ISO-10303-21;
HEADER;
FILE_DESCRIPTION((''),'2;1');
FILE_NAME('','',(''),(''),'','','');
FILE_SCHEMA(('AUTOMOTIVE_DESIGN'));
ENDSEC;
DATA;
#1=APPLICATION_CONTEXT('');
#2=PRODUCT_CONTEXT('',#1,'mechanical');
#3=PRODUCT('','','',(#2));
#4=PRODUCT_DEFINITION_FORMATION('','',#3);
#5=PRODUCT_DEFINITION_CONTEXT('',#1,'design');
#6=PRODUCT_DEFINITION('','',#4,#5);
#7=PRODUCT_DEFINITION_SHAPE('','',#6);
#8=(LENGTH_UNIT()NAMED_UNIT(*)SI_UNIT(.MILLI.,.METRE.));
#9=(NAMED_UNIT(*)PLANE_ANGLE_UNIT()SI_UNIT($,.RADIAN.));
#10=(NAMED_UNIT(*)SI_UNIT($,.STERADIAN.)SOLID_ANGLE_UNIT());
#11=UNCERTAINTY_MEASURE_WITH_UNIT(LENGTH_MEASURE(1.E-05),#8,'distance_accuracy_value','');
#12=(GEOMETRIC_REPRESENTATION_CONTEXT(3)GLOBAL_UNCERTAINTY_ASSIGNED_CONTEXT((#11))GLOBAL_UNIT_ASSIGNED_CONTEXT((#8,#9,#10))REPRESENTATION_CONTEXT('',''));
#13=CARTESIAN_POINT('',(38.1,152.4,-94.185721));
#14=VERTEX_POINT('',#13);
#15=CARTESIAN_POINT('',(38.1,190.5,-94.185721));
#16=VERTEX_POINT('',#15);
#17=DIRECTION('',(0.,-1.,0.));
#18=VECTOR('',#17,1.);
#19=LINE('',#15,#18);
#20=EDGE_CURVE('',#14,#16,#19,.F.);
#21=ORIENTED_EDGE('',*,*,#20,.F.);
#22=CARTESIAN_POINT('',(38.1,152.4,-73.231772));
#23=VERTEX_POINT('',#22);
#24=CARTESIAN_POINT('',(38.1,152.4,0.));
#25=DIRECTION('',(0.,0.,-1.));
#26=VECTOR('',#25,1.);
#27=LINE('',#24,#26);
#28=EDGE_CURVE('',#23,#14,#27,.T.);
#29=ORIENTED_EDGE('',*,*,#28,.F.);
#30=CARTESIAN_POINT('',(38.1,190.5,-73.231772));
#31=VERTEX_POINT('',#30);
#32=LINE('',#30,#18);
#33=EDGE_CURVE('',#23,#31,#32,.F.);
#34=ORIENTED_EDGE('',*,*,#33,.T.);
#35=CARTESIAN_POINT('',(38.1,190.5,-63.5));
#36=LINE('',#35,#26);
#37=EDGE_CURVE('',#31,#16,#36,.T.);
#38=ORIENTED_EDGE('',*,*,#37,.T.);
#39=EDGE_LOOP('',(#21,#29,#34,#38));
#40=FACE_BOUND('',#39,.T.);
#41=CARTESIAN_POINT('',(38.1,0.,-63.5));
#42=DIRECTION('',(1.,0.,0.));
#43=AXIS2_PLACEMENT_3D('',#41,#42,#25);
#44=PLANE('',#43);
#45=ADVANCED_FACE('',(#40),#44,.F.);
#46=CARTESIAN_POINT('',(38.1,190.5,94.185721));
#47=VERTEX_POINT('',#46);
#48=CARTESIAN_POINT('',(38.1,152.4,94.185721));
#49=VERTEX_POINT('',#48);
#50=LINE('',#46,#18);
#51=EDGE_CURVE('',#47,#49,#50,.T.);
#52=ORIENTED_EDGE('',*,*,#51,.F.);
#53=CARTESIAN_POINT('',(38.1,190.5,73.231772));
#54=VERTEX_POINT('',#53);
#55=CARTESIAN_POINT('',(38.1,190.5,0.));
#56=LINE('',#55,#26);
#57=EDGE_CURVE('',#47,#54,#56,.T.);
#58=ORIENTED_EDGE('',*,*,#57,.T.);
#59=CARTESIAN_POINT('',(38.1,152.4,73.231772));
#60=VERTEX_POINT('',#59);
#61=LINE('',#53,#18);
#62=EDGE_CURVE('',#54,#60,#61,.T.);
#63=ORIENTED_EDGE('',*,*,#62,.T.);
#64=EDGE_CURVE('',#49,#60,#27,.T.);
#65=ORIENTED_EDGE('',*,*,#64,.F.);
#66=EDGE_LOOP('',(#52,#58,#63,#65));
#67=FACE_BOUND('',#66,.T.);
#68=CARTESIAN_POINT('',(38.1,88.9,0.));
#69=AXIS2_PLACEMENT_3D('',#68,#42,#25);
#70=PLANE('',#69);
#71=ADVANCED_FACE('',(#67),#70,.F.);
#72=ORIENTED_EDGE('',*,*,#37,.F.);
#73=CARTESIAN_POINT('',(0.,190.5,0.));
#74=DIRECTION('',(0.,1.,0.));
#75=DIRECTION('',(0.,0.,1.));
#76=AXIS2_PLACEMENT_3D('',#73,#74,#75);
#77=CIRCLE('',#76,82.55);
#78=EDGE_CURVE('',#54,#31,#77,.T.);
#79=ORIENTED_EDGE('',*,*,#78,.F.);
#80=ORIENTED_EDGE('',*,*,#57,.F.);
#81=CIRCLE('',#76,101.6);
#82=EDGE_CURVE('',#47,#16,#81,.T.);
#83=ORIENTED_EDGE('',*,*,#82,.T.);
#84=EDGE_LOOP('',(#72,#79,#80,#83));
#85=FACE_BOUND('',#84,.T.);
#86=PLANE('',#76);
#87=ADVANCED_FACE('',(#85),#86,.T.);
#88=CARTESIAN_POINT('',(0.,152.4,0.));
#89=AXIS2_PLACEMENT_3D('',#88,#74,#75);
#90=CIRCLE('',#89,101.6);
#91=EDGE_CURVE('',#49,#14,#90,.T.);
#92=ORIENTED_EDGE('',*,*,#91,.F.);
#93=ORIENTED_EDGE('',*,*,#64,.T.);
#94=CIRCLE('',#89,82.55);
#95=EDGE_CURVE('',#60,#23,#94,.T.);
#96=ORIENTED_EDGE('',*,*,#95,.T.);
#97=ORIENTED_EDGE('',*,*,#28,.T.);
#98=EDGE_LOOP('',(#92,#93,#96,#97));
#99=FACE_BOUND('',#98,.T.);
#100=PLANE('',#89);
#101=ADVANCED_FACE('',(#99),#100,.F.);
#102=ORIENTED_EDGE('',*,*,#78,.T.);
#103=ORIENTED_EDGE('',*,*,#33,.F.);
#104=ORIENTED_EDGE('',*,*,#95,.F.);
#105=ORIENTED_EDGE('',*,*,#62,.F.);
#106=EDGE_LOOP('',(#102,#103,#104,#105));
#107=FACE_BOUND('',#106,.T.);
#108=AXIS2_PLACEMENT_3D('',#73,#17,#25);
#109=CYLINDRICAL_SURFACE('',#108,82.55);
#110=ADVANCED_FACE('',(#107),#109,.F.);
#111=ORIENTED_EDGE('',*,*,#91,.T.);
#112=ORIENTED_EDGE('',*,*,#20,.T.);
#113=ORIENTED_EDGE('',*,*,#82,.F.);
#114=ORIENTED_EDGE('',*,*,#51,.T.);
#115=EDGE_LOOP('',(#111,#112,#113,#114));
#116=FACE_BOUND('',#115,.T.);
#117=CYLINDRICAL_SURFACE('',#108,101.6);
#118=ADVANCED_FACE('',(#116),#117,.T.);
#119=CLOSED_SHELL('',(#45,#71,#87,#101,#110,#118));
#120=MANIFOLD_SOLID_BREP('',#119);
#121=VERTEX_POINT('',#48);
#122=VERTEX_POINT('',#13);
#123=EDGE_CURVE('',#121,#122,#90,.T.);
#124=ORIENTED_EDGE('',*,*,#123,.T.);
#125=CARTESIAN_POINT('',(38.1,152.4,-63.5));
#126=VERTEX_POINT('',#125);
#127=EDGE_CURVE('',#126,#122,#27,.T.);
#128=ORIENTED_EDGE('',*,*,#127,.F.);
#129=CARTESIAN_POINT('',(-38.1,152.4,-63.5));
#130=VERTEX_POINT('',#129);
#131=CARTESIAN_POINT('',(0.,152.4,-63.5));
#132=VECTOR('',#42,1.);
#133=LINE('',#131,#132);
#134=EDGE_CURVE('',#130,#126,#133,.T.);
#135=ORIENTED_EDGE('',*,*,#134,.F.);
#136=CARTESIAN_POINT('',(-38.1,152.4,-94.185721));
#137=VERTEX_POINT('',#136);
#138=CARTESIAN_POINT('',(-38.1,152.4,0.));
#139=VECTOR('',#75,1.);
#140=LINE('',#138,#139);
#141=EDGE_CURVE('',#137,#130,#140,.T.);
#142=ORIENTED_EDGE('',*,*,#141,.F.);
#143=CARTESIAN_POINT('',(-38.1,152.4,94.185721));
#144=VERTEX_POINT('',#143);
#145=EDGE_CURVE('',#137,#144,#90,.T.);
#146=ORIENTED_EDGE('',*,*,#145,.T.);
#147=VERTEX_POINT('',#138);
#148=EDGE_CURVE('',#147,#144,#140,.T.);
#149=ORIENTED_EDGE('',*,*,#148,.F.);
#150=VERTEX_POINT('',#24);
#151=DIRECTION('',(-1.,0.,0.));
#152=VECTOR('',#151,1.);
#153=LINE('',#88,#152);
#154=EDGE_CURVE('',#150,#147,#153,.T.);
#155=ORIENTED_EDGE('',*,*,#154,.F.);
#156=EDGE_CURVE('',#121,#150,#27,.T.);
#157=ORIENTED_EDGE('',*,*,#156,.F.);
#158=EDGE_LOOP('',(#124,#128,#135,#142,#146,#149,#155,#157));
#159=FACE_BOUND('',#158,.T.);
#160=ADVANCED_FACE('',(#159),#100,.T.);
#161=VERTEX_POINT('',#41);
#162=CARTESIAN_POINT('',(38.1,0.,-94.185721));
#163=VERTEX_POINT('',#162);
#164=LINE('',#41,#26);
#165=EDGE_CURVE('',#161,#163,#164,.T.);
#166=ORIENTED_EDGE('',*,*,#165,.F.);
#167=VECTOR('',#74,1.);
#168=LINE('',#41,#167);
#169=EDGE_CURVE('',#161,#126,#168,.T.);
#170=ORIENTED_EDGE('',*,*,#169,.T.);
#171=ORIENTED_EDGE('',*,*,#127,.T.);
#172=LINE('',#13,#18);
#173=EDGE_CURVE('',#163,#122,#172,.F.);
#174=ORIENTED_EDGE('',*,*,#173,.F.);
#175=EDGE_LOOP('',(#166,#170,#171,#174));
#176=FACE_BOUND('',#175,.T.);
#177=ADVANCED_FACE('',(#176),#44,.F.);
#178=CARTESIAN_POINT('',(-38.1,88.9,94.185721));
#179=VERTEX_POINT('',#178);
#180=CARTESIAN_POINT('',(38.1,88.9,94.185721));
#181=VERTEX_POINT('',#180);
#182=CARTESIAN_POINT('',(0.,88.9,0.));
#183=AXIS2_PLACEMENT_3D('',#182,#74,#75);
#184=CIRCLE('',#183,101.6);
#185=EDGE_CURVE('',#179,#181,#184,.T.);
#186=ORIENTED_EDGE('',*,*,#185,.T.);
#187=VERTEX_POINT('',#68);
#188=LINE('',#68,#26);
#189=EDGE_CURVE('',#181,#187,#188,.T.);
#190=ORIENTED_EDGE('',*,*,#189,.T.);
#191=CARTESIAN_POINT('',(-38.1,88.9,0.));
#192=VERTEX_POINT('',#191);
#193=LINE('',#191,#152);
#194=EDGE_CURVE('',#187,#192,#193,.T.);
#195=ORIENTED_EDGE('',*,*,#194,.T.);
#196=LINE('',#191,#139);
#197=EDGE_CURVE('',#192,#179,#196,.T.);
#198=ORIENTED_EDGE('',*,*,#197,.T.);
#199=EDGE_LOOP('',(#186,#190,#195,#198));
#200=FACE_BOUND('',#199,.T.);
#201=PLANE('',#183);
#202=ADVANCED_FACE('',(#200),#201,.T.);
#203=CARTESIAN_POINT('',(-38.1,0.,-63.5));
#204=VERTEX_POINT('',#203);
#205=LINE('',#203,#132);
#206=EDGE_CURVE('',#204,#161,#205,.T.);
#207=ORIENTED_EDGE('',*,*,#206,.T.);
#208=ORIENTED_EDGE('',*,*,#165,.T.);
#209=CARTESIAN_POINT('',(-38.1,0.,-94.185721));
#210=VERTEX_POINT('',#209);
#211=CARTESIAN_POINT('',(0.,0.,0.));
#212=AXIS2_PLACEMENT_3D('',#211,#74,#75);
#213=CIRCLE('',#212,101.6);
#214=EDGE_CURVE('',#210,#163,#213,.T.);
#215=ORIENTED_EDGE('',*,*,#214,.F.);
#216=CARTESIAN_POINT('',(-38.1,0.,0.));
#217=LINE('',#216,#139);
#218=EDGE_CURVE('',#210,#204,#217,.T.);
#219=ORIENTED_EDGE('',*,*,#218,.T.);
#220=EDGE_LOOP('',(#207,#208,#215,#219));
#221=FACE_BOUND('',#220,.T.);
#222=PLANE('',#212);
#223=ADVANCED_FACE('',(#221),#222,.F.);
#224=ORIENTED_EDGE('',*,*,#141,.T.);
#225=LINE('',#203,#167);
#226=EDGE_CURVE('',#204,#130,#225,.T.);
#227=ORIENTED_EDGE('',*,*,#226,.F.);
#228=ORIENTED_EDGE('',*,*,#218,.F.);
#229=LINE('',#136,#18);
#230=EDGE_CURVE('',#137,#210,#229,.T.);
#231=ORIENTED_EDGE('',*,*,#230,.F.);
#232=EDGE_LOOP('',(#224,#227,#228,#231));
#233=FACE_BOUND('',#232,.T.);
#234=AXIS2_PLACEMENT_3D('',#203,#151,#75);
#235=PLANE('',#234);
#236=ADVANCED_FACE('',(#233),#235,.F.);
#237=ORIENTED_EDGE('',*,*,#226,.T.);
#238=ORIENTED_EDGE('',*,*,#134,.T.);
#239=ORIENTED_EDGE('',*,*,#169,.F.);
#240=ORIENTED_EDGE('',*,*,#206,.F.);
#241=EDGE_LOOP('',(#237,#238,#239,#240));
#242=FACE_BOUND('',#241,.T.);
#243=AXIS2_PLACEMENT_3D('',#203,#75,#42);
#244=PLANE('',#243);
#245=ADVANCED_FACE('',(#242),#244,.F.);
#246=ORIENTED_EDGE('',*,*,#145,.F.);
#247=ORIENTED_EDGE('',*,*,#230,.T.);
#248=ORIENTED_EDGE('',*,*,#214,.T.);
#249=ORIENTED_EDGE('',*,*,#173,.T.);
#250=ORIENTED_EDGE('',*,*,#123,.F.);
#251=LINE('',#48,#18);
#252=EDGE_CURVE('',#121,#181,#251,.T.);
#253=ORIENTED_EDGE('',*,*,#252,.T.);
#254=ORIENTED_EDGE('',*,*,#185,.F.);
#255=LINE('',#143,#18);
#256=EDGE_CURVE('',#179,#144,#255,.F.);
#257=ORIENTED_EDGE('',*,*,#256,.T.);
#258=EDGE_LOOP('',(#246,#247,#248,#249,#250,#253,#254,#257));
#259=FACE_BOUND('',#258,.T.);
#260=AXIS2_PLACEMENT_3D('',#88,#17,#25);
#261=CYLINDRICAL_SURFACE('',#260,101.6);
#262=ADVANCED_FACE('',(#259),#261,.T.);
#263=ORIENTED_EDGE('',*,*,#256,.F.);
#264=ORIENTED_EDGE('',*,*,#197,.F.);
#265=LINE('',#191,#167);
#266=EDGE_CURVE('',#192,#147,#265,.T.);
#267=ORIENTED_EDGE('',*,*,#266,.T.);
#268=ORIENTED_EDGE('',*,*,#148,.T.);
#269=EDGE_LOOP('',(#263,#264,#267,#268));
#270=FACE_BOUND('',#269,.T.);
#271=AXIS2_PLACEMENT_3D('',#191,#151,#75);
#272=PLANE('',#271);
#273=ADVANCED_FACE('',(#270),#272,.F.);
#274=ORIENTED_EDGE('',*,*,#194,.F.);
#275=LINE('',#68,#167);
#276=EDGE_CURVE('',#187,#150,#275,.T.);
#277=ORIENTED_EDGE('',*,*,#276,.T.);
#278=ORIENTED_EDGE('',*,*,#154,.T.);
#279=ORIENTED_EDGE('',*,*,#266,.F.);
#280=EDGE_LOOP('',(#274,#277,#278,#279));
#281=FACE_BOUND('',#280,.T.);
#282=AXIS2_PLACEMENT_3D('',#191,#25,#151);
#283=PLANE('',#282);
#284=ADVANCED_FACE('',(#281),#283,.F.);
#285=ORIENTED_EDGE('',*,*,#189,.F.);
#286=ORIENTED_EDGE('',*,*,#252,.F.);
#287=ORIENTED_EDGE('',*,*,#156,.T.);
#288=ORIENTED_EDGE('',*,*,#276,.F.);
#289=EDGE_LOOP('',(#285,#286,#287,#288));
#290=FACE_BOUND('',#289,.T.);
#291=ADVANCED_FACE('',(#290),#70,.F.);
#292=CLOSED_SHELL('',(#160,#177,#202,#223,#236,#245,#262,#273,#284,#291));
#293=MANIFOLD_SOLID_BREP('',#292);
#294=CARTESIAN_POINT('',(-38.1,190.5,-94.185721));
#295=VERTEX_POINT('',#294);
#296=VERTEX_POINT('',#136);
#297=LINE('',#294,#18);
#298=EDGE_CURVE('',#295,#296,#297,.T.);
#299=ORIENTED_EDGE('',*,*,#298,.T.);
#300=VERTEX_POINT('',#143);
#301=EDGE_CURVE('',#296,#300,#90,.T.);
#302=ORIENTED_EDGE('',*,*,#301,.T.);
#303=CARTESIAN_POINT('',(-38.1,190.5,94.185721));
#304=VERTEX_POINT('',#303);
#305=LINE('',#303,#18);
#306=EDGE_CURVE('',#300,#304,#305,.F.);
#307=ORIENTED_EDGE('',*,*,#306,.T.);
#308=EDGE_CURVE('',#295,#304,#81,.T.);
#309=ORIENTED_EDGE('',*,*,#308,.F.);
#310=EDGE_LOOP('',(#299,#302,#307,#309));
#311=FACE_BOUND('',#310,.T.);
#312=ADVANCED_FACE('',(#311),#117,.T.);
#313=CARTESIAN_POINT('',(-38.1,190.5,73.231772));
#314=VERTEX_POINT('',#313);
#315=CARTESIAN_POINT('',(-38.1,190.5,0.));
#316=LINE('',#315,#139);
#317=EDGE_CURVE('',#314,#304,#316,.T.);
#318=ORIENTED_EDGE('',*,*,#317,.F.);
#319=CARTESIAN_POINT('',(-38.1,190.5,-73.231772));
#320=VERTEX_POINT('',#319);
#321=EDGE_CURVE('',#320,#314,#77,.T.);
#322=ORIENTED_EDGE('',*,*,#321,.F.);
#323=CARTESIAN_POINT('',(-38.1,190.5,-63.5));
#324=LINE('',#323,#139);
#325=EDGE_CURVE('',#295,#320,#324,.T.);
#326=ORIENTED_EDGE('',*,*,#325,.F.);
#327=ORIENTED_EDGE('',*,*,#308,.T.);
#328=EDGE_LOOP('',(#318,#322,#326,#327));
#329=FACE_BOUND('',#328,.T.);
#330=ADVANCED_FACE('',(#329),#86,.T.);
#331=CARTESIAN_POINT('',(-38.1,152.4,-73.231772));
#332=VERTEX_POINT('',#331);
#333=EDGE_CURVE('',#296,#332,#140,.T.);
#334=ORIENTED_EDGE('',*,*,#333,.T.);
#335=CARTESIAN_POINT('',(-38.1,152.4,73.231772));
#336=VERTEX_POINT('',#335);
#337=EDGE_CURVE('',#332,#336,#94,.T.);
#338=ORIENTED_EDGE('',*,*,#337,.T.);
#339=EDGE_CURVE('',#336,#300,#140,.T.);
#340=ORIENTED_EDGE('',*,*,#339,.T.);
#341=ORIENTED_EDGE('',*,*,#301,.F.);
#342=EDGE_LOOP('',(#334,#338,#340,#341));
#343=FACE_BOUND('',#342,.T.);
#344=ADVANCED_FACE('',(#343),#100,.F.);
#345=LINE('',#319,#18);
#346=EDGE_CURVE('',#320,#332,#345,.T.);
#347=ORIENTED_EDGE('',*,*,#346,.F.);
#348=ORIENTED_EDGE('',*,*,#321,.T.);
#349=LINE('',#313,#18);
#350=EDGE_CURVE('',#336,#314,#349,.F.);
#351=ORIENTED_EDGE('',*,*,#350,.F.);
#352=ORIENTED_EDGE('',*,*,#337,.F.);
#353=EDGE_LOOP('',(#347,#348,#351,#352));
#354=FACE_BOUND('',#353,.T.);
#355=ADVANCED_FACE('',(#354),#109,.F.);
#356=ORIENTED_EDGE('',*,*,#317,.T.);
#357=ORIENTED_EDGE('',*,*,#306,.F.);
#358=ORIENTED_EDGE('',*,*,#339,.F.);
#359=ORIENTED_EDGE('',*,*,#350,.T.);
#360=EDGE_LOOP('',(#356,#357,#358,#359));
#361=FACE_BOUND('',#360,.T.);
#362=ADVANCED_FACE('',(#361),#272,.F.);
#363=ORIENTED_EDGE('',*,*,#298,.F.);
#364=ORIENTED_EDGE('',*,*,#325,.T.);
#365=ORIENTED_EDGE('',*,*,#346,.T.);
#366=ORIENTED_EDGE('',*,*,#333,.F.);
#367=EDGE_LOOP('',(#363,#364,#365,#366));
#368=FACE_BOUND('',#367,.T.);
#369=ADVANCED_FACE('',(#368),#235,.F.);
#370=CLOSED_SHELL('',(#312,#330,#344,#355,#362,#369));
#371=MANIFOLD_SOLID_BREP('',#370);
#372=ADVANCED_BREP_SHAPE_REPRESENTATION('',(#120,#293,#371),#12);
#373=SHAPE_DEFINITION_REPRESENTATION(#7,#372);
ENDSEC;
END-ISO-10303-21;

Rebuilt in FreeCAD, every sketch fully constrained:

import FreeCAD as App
import Part
import Sketcher
from FreeCAD import Vector
Q = App.Units.Quantity

doc = App.newDocument("Part")
params = doc.addObject("Spreadsheet::Sheet", "Params")
for row, (alias, value) in enumerate([
    ("sketch1_diameter", "8 in"),
    ("pad1_length", "6 in"),
    ("sketch2_diameter", "8 in"),
    ("sketch2_diameter2", "6.5 in"),
    ("pad2_length", "1.5 in"),
    ("sketch3_width", "3 in"),
    ("sketch3_height", "4 in"),
    ("pad3_length", "4 in"),
    ("sketch4_width", "3 in"),
    ("sketch4_height", "1.5 in"),
    ("pad4_length", "239.611337 mm"),
], start=1):
    params.set(f"A{row}", alias)
    params.set(f"B{row}", "=" + value)
    params.setAlias(f"B{row}", alias)

body = doc.addObject("PartDesign::Body", "Body")

sketch1 = body.newObject("Sketcher::SketchObject", "Sketch")
sketch1.AttachmentSupport = (doc.getObject("XZ_Plane"), [""])
sketch1.MapMode = "FlatFace"
sketch1.addGeometry(Part.Circle(Vector(0, 0, 0), Vector(0, 0, 1), 102), False)
sketch1.addConstraint([
    Sketcher.Constraint("Coincident", 0, 3, -1, 1),
    Sketcher.Constraint("Diameter", 0, Q("8 in")),
])
sketch1.setExpression("Constraints[1]", "Params.sketch1_diameter")
pad1 = body.newObject("PartDesign::Pad", "Pad")
pad1.Profile = sketch1
pad1.setExpression("Length", "Params.pad1_length")
pad1.Reversed = True
body2 = doc.addObject("PartDesign::Body", "Body001")

sketch2 = body2.newObject("Sketcher::SketchObject", "Sketch001")
sketch2.AttachmentSupport = (doc.getObject("XZ_Plane001"), [""])
sketch2.MapMode = "FlatFace"
sketch2.AttachmentOffset = App.Placement(Vector(0, 0, -6 * 25.4), App.Rotation())
sketch2.addGeometry([
    Part.Circle(Vector(0, 0, 0), Vector(0, 0, 1), 102),
    Part.Circle(Vector(0, 0, 0), Vector(0, 0, 1), 83),
], False)
sketch2.addConstraint([
    Sketcher.Constraint("Coincident", 0, 3, -1, 1),
    Sketcher.Constraint("Coincident", 1, 3, -1, 1),
    Sketcher.Constraint("Diameter", 0, Q("8 in")),
    Sketcher.Constraint("Diameter", 1, Q("6.5 in")),
])
sketch2.setExpression("Constraints[2]", "Params.sketch2_diameter")
sketch2.setExpression("Constraints[3]", "Params.sketch2_diameter2")
pad2 = body2.newObject("PartDesign::Pad", "Pad001")
pad2.Profile = sketch2
pad2.setExpression("Length", "Params.pad2_length")
pad2.Reversed = True
body3 = doc.addObject("PartDesign::Body", "Body002")

sketch3 = body3.newObject("Sketcher::SketchObject", "Sketch002")
sketch3.AttachmentSupport = (doc.getObject("XZ_Plane002"), [""])
sketch3.MapMode = "FlatFace"
sketch3.AttachmentOffset = App.Placement(Vector(0, 0, -7.5 * 25.4), App.Rotation())
sketch3.addGeometry([
    Part.LineSegment(Vector(-38, 0, 0), Vector(-38, 102, 0)),
    Part.LineSegment(Vector(-38, 102, 0), Vector(38, 102, 0)),
    Part.LineSegment(Vector(38, 102, 0), Vector(38, 0, 0)),
    Part.LineSegment(Vector(38, 0, 0), Vector(-38, 0, 0)),
], False)
sketch3.addConstraint([
    Sketcher.Constraint("Coincident", 0, 2, 1, 1),
    Sketcher.Constraint("Coincident", 1, 2, 2, 1),
    Sketcher.Constraint("Coincident", 2, 2, 3, 1),
    Sketcher.Constraint("Coincident", 3, 2, 0, 1),
    Sketcher.Constraint("Vertical", 0),
    Sketcher.Constraint("Horizontal", 1),
    Sketcher.Constraint("Vertical", 2),
    Sketcher.Constraint("Horizontal", 3),
    Sketcher.Constraint("Symmetric", 2, 2, 3, 2, -1, 1),
    Sketcher.Constraint("DistanceX", 1, 1, 1, 2, Q("3 in")),
    Sketcher.Constraint("DistanceY", 0, 1, 0, 2, Q("4 in")),
])
sketch3.setExpression("Constraints[9]", "Params.sketch3_width")
sketch3.setExpression("Constraints[10]", "Params.sketch3_height")
pad3 = body3.newObject("PartDesign::Pad", "Pad002")
pad3.Profile = sketch3
pad3.setExpression("Length", "Params.pad3_length")
doc.recompute()

body4 = doc.addObject("PartDesign::Body", "Body003")
body4.BaseFeature = body3
boolean = body.newObject("PartDesign::Boolean", "Boolean")
boolean.Type = "Cut"
boolean.addObjects([body4])
doc.recompute()

boolean2 = body2.newObject("PartDesign::Boolean", "Boolean001")
boolean2.Type = "Cut"
boolean2.addObjects([body3])
body5 = doc.addObject("PartDesign::Body", "Body004")

sketch4 = body5.newObject("Sketcher::SketchObject", "Sketch003")
sketch4.AttachmentSupport = (doc.getObject("XZ_Plane004"), [""])
sketch4.MapMode = "FlatFace"
sketch4.AttachmentOffset = App.Placement(Vector(0, 0, -7.5 * 25.4), App.Rotation())
sketch4.addGeometry([
    Part.LineSegment(Vector(-38, -102, 0), Vector(-38, -64, 0)),
    Part.LineSegment(Vector(-38, -64, 0), Vector(38, -64, 0)),
    Part.LineSegment(Vector(38, -64, 0), Vector(38, -102, 0)),
    Part.LineSegment(Vector(38, -102, 0), Vector(-38, -102, 0)),
], False)
sketch4.addConstraint([
    Sketcher.Constraint("Coincident", 0, 2, 1, 1),
    Sketcher.Constraint("Coincident", 1, 2, 2, 1),
    Sketcher.Constraint("Coincident", 2, 2, 3, 1),
    Sketcher.Constraint("Coincident", 3, 2, 0, 1),
    Sketcher.Constraint("Vertical", 0),
    Sketcher.Constraint("Horizontal", 1),
    Sketcher.Constraint("Vertical", 2),
    Sketcher.Constraint("Horizontal", 3),
    Sketcher.Constraint("DistanceX", 1, 1, 1, 2, Q("3 in")),
    Sketcher.Constraint("DistanceY", 0, 1, 0, 2, Q("1.5 in")),
    Sketcher.Constraint("DistanceY", 2, 2, -1, 1, Q("4 in")),
    Sketcher.Constraint("DistanceX", 0, 2, -1, 1, Q("1.5 in")),
])
sketch4.setExpression("Constraints[8]", "Params.sketch4_width")
sketch4.setExpression("Constraints[9]", "Params.sketch4_height")
pad4 = body5.newObject("PartDesign::Pad", "Pad003")
pad4.Profile = sketch4
pad4.setExpression("Length", "Params.pad4_length")
doc.recompute()

body6 = doc.addObject("PartDesign::Body", "Body005")
body6.BaseFeature = body5
boolean3 = body.newObject("PartDesign::Boolean", "Boolean002")
boolean3.Type = "Cut"
boolean3.addObjects([body6])
doc.recompute()
body2.AllowCompound = True
doc.recompute()

boolean4 = body2.newObject("PartDesign::Boolean", "Boolean003")
boolean4.Type = "Cut"
boolean4.addObjects([body5])

doc.recompute()
